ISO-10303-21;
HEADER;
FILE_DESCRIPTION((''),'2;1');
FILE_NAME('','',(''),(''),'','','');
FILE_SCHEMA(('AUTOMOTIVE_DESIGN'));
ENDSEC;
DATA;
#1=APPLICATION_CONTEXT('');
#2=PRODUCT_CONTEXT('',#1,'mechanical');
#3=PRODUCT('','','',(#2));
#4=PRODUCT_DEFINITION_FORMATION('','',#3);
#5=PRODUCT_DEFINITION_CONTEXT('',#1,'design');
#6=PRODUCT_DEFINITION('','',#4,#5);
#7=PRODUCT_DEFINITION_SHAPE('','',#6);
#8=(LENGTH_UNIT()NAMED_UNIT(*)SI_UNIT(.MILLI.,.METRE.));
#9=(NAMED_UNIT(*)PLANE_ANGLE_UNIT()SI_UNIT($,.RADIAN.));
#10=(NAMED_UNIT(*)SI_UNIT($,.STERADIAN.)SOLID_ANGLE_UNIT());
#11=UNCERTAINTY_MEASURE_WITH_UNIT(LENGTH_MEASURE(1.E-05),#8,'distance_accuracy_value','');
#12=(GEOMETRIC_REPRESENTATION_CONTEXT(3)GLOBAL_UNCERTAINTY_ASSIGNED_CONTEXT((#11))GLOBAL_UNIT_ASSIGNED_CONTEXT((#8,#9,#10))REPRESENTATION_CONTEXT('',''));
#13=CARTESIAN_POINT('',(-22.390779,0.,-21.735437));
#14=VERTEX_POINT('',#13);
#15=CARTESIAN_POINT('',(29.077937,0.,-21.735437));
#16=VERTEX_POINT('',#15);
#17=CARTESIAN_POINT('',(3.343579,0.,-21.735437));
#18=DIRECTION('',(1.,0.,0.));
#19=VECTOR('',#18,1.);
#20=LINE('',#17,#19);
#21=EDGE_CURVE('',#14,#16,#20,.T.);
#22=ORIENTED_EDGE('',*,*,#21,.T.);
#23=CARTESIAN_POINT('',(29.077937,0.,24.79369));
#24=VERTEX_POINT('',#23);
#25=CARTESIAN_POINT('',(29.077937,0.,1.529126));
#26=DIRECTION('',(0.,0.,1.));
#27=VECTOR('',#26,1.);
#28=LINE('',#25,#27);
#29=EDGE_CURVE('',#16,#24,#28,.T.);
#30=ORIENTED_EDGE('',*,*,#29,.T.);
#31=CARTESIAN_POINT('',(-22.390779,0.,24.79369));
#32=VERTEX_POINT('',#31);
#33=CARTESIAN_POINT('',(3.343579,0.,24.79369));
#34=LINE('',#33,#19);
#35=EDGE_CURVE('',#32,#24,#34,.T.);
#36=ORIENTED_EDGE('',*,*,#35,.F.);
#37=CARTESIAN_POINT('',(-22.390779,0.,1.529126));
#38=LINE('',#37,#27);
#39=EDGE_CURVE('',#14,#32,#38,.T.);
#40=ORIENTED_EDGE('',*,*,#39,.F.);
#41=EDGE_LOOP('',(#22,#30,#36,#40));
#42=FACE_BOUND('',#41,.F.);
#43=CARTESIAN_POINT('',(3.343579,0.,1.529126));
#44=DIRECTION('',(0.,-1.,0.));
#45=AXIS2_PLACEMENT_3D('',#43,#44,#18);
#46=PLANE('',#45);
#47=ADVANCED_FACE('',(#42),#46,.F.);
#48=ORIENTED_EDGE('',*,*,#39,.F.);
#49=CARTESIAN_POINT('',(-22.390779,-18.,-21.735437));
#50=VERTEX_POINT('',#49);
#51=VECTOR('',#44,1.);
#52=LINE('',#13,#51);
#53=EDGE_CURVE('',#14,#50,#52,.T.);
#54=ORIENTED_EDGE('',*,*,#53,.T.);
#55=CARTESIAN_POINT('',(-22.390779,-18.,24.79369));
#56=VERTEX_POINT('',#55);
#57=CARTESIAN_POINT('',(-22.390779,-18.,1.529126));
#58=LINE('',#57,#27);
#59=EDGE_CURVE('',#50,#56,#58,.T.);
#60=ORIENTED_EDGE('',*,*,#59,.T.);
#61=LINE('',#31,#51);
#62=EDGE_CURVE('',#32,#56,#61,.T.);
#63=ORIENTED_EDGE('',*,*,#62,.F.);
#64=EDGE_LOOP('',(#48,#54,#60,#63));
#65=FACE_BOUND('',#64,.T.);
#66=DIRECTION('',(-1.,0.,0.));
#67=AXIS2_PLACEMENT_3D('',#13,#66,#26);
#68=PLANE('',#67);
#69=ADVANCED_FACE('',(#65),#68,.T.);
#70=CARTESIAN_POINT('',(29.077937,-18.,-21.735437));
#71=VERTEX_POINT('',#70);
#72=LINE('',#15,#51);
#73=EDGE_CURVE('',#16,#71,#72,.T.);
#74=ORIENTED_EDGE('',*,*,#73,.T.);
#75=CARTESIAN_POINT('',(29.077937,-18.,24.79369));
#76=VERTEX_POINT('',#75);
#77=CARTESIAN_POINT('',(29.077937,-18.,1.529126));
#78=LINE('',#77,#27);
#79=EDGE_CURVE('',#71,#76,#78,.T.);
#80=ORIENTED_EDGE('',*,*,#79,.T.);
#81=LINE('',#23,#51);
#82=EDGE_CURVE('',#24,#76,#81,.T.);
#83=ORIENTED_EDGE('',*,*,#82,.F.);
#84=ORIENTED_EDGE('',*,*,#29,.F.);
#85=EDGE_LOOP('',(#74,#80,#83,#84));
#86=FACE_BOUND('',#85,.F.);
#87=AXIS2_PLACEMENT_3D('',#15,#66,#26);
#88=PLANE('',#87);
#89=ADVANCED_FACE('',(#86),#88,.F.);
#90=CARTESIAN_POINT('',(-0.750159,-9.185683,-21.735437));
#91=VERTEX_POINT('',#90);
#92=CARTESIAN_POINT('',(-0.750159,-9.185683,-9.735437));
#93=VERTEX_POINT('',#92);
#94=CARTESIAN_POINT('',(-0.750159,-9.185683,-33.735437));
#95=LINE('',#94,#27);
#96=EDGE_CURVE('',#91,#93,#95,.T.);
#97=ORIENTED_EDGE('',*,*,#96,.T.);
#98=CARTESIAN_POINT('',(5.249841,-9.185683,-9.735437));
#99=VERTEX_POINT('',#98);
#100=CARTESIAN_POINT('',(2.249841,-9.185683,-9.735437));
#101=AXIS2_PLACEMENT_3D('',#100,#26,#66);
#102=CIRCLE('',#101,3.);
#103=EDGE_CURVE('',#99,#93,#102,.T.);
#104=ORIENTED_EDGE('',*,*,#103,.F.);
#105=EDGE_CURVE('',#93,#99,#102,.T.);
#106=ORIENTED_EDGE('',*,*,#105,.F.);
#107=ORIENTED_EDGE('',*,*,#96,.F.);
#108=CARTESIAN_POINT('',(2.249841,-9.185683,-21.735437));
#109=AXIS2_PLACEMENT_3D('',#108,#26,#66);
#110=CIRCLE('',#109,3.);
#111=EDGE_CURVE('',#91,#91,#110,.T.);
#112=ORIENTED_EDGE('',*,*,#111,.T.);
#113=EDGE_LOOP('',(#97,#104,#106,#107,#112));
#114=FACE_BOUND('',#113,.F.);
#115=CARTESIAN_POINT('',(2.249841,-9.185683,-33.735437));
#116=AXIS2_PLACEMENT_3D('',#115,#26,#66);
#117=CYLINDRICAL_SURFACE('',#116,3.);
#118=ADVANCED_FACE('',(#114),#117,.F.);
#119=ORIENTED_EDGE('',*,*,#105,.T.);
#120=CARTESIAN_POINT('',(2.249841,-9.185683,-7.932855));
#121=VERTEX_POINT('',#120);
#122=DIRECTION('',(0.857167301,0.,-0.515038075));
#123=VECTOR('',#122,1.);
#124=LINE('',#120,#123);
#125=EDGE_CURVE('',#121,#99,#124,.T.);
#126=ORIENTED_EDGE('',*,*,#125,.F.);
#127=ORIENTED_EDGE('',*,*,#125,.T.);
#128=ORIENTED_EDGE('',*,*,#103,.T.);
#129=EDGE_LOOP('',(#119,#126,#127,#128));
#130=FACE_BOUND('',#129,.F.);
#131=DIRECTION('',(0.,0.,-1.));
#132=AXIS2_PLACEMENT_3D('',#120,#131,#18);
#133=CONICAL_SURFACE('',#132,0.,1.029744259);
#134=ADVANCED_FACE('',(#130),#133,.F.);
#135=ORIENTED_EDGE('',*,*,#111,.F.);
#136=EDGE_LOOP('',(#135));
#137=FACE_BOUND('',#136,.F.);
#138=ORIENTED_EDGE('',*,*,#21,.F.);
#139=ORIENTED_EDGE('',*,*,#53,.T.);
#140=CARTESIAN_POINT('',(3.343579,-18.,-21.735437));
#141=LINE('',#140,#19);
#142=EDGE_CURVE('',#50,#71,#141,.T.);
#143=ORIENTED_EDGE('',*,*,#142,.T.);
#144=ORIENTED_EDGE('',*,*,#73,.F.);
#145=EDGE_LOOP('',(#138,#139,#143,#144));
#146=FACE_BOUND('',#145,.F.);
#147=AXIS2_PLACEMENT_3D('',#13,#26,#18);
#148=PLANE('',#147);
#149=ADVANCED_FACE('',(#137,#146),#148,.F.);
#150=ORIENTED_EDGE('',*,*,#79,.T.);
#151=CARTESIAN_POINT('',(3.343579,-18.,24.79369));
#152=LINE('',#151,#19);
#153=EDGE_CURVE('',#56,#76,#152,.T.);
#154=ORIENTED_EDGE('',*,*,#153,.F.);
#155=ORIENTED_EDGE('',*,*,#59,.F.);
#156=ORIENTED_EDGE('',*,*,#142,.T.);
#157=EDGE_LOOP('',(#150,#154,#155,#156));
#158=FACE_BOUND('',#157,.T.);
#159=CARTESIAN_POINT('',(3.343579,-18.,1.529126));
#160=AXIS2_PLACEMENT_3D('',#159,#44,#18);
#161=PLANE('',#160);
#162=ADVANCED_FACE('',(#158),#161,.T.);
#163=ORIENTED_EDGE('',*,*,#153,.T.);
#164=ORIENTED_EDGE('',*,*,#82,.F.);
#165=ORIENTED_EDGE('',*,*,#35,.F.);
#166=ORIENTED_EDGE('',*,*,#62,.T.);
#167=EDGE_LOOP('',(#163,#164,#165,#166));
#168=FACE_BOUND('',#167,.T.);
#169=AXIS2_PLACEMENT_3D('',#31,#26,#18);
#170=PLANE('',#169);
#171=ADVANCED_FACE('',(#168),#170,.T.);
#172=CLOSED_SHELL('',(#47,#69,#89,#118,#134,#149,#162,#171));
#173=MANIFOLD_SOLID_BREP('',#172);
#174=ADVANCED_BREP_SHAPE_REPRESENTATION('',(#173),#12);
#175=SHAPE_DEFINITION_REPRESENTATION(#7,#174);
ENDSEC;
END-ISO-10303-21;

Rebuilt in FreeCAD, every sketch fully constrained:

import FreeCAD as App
import Part
import Sketcher

V = App.Vector
Q = App.Units.Quantity


def add_polygon(sketch, points):
    """Adds a closed chain of lines whose ends are joined by coincident constraints."""
    first, n = sketch.GeometryCount, len(points)
    for a, b in zip(points, points[1:] + points[:1]):
        sketch.addGeometry(Part.LineSegment(App.Vector(*a, 0), App.Vector(*b, 0)), False)
    for i in range(n):
        sketch.addConstraint(Sketcher.Constraint("Coincident", first + i, 2, first + (i + 1) % n, 1))

doc = App.newDocument("Part")
body = doc.addObject("PartDesign::Body", "Body")

sketch1 = doc.addObject("Sketcher::SketchObject", "Sketch")
body.addObject(sketch1)
sketch1.AttachmentSupport = (doc.XZ_Plane, [""])
sketch1.MapMode = "FlatFace"
add_polygon(sketch1, [(-22.390779, 24.79369), (-22.390779, -21.735437), (29.077937, -21.735437), (29.077937, 24.79369)])
sketch1.addConstraint(Sketcher.Constraint("Vertical", 0))
sketch1.addConstraint(Sketcher.Constraint("Horizontal", 1))
sketch1.addConstraint(Sketcher.Constraint("Vertical", 2))
sketch1.addConstraint(Sketcher.Constraint("Horizontal", 3))
sketch1.addConstraint(Sketcher.Constraint("DistanceX", 1, 1, 1, 2, Q("51.468716 mm")))
sketch1.addConstraint(Sketcher.Constraint("DistanceY", 0, 2, 0, 1, Q("46.529127 mm")))
sketch1.addConstraint(Sketcher.Constraint("DistanceX", 0, 2, -1, 1, Q("22.390779 mm")))
sketch1.addConstraint(Sketcher.Constraint("DistanceY", -1, 1, 2, 2, Q("24.79369 mm")))
pad1 = doc.addObject("PartDesign::Pad", "Pad")
body.addObject(pad1)
pad1.Profile = sketch1
pad1.Length = 18

sketch2 = doc.addObject("Sketcher::SketchObject", "Sketch001")
body.addObject(sketch2)
sketch2.AttachmentSupport = (doc.XY_Plane, [""])
sketch2.MapMode = "FlatFace"
sketch2.AttachmentOffset = App.Placement(V(0, 0, -21.735437), App.Rotation())
sketch2.addGeometry(Part.Circle(V(2.249841, -9.185683, 0), V(0, 0, 1), 3), False)
sketch2.addConstraint(Sketcher.Constraint("Diameter", 0, Q("6 mm")))
sketch2.addConstraint(Sketcher.Constraint("DistanceX", -1, 1, 0, 3, Q("2.249841 mm")))
sketch2.addConstraint(Sketcher.Constraint("DistanceY", 0, 3, -1, 1, Q("9.185683 mm")))
doc.recompute()
hole = doc.addObject("PartDesign::Hole", "Hole")
body.addObject(hole)
hole.Profile = sketch2
hole.ThreadType = "None"
hole.Diameter = 6
hole.DepthType = "Dimension"
hole.Depth = 12
hole.DrillPoint = "Angled"
hole.DrillPointAngle = 118
hole.Reversed = True

doc.recompute()
